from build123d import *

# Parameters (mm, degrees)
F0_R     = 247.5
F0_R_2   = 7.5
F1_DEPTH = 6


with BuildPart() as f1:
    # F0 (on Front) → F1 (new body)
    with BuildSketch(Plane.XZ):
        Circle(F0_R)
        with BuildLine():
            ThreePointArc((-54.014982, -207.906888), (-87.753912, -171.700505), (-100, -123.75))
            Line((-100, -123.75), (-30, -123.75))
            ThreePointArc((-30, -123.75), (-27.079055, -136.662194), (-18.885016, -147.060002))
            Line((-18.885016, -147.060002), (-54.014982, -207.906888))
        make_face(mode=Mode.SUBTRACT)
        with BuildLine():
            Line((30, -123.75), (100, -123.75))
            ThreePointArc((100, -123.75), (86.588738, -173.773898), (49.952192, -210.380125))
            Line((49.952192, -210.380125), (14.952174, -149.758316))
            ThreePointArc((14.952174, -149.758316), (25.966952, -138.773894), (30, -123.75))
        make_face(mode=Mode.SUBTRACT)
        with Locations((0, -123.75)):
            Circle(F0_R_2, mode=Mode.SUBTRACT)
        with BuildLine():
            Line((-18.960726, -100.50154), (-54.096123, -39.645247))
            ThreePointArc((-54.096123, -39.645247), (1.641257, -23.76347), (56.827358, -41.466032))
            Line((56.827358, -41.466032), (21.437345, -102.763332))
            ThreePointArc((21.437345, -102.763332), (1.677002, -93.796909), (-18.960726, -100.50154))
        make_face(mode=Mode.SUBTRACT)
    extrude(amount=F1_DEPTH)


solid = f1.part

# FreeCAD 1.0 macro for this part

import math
import FreeCAD as App
import Part
import Sketcher
Q = App.Units.Quantity

doc = App.newDocument("Part")
body = doc.addObject("PartDesign::Body", "Body")

# Sketch on XZ plane
sketch1 = doc.addObject("Sketcher::SketchObject", "Sketch")
body.addObject(sketch1)
sketch1.AttachmentSupport = (doc.XZ_Plane, [""])
sketch1.MapMode = "FlatFace"
sketch1.addGeometry(Part.Circle(App.Vector(0, 0, 0), App.Vector(0, 0, 1), 248), False)
sketch1.addGeometry(Part.LineSegment(App.Vector(-19, -147, 0), App.Vector(-54, -208, 0)), False)
sketch1.addGeometry(Part.ArcOfCircle(Part.Circle(App.Vector(0, -124, 0), App.Vector(0, 0, 1), 100), math.radians(-180), math.radians(-123)), False)
sketch1.addGeometry(Part.LineSegment(App.Vector(-100, -124, 0), App.Vector(-30, -124, 0)), False)
sketch1.addGeometry(Part.ArcOfCircle(Part.Circle(App.Vector(0, -124, 0), App.Vector(0, 0, 1), 30), math.radians(-180), math.radians(-129)), False)
sketch1.addGeometry(Part.ArcOfCircle(Part.Circle(App.Vector(0, -124, 0), App.Vector(0, 0, 1), 30), math.radians(-60), math.radians(0)), False)
sketch1.addGeometry(Part.LineSegment(App.Vector(30, -124, 0), App.Vector(100, -124, 0)), False)
sketch1.addGeometry(Part.ArcOfCircle(Part.Circle(App.Vector(0, -124, 0), App.Vector(0, 0, 1), 100), math.radians(-60), math.radians(0)), False)
sketch1.addGeometry(Part.LineSegment(App.Vector(50, -210, 0), App.Vector(15, -150, 0)), False)
sketch1.addGeometry(Part.Circle(App.Vector(0, -124, 0), App.Vector(0, 0, 1), 8), False)
sketch1.addGeometry(Part.ArcOfCircle(Part.Circle(App.Vector(0, -124, 0), App.Vector(0, 0, 1), 30), math.radians(44), math.radians(129)), False)
sketch1.addGeometry(Part.LineSegment(App.Vector(-19, -101, 0), App.Vector(-54, -40, 0)), False)
sketch1.addGeometry(Part.ArcOfCircle(Part.Circle(App.Vector(0, -124, 0), App.Vector(0, 0, 1), 100), math.radians(55), math.radians(123)), False)
sketch1.addGeometry(Part.LineSegment(App.Vector(57, -41, 0), App.Vector(21, -103, 0)), False)
sketch1.addConstraint(Sketcher.Constraint("Coincident", 1, 2, 2, 2))
sketch1.addConstraint(Sketcher.Constraint("Coincident", 2, 1, 3, 1))
sketch1.addConstraint(Sketcher.Constraint("Coincident", 3, 2, 4, 1))
sketch1.addConstraint(Sketcher.Constraint("Coincident", 4, 2, 1, 1))
sketch1.addConstraint(Sketcher.Constraint("Coincident", 5, 2, 6, 1))
sketch1.addConstraint(Sketcher.Constraint("Coincident", 6, 2, 7, 2))
sketch1.addConstraint(Sketcher.Constraint("Coincident", 7, 1, 8, 1))
sketch1.addConstraint(Sketcher.Constraint("Coincident", 8, 2, 5, 1))
sketch1.addConstraint(Sketcher.Constraint("Coincident", 10, 2, 11, 1))
sketch1.addConstraint(Sketcher.Constraint("Coincident", 11, 2, 12, 2))
sketch1.addConstraint(Sketcher.Constraint("Coincident", 12, 1, 13, 1))
sketch1.addConstraint(Sketcher.Constraint("Coincident", 13, 2, 10, 1))
sketch1.addConstraint(Sketcher.Constraint("Horizontal", 3))
sketch1.addConstraint(Sketcher.Constraint("Horizontal", 6))
sketch1.addConstraint(Sketcher.Constraint("Coincident", 0, 3, -1, 1))
sketch1.addConstraint(Sketcher.Constraint("Coincident", 4, 3, 2, 3))
sketch1.addConstraint(Sketcher.Constraint("Coincident", 5, 3, 2, 3))
sketch1.addConstraint(Sketcher.Constraint("Coincident", 7, 3, 2, 3))
sketch1.addConstraint(Sketcher.Constraint("Coincident", 9, 3, 2, 3))
sketch1.addConstraint(Sketcher.Constraint("Coincident", 10, 3, 2, 3))
sketch1.addConstraint(Sketcher.Constraint("Coincident", 12, 3, 2, 3))
sketch1.addConstraint(Sketcher.Constraint("Equal", 2, 7))
sketch1.addConstraint(Sketcher.Constraint("Equal", 5, 10))
sketch1.addConstraint(Sketcher.Constraint("Equal", 7, 12))
sketch1.addConstraint(Sketcher.Constraint("Symmetric", 3, 2, 5, 2, -2))
sketch1.addConstraint(Sketcher.Constraint("PointOnObject", 2, 3, -2))
sketch1.addConstraint(Sketcher.Constraint("Parallel", 8, 11))
sketch1.addConstraint(Sketcher.Constraint("Parallel", 1, 13))
sketch1.addConstraint(Sketcher.Constraint("Horizontal", 10, 3, 2, 1))
sketch1.addConstraint(Sketcher.Constraint("Diameter", 0, Q("495 mm")))
sketch1.addConstraint(Sketcher.Constraint("Diameter", 9, Q("15 mm")))
sketch1.addConstraint(Sketcher.Constraint("Radius", 2, Q("100.000002 mm")))
sketch1.addConstraint(Sketcher.Constraint("Radius", 5, Q("30.000002 mm")))
sketch1.addConstraint(Sketcher.Constraint("Angle", 1, Q("-120 deg")))
sketch1.addConstraint(Sketcher.Constraint("Angle", 8, Q("120 deg")))
sketch1.addConstraint(Sketcher.Constraint("DistanceY", 2, 3, -1, 1, Q("123.75 mm")))
sketch1.addConstraint(Sketcher.Constraint("DistanceY", 4, 2, -1, 1, Q("147.060002 mm")))
sketch1.addConstraint(Sketcher.Constraint("DistanceX", -1, 1, 7, 1, Q("49.952192 mm")))
sketch1.addConstraint(Sketcher.Constraint("DistanceY", 10, 2, -1, 1, Q("100.50154 mm")))
sketch1.addConstraint(Sketcher.Constraint("DistanceX", 4, 3, 12, 1, Q("56.827352 mm")))
pad1 = doc.addObject("PartDesign::Pad", "Pad")
body.addObject(pad1)
pad1.Profile = sketch1
pad1.Length = 6

doc.recompute()
